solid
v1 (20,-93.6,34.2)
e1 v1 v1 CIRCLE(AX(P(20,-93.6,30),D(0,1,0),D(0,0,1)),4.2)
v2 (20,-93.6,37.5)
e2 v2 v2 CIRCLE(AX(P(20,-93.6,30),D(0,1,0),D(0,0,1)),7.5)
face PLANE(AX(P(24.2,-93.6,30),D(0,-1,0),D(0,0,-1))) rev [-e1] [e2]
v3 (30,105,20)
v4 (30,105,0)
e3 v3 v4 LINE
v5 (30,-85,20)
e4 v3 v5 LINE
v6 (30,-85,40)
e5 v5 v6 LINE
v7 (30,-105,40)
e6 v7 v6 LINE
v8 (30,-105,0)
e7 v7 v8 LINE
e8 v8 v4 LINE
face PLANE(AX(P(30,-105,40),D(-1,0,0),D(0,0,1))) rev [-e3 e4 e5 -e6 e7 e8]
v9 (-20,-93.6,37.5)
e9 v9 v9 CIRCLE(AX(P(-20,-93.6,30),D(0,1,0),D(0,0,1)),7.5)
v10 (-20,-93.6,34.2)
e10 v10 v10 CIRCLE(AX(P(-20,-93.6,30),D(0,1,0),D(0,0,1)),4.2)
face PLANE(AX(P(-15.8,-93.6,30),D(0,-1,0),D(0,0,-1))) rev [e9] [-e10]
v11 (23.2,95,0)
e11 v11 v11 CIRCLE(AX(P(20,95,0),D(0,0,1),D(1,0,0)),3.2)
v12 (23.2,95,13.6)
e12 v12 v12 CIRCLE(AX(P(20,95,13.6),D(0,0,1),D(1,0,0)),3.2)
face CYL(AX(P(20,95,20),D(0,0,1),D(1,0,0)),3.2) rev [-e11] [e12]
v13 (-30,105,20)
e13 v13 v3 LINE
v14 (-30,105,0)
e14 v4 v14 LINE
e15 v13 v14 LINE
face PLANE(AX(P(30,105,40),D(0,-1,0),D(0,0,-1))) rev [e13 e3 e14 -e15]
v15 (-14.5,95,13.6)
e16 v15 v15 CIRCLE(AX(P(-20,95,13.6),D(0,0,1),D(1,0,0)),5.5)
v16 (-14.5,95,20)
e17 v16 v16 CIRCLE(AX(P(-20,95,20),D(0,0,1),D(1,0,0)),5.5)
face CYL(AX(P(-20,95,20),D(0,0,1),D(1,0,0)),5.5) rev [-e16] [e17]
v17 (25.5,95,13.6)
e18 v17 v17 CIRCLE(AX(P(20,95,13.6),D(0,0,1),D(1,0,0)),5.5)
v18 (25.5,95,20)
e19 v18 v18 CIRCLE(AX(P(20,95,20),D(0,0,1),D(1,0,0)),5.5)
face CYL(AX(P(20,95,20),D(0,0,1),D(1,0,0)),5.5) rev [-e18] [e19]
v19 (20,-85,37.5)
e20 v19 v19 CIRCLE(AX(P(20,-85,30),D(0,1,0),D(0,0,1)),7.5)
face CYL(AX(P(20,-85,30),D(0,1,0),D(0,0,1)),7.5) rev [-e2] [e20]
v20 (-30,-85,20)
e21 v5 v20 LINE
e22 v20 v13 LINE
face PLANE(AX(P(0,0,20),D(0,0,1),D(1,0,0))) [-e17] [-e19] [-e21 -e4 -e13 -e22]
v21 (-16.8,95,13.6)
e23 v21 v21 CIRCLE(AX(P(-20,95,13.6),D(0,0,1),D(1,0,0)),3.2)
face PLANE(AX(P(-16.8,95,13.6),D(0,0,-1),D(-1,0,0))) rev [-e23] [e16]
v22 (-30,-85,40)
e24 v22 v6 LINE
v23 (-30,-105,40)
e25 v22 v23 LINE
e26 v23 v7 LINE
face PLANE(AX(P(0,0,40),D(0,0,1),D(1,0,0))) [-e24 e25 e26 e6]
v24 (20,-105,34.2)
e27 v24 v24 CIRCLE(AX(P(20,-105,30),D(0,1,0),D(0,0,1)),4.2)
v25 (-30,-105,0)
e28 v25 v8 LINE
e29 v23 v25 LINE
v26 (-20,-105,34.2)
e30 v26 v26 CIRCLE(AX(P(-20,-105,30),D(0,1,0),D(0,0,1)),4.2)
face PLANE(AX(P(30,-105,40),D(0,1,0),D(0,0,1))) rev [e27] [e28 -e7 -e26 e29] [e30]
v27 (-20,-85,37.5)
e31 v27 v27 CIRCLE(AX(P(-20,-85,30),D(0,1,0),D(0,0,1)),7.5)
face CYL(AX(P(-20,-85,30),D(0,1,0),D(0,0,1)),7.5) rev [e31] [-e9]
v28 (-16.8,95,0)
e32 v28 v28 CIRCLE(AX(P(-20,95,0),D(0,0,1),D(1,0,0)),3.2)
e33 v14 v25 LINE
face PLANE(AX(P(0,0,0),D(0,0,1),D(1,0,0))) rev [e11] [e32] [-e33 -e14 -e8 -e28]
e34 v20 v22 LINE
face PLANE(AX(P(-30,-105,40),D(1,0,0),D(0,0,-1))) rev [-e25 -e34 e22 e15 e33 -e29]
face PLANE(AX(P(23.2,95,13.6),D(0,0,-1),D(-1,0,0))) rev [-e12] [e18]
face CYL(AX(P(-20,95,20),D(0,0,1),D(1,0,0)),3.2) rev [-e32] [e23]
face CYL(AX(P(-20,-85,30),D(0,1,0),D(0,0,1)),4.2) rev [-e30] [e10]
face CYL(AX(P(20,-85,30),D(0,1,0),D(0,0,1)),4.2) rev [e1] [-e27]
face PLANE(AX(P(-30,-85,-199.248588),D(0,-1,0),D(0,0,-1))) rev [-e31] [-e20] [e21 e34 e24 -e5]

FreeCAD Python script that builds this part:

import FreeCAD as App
import Part
import Sketcher


def add_polygon(sketch, points):
    """Adds a closed chain of lines whose ends are joined by coincident constraints."""
    first, n = sketch.GeometryCount, len(points)
    for a, b in zip(points, points[1:] + points[:1]):
        sketch.addGeometry(Part.LineSegment(App.Vector(*a, 0), App.Vector(*b, 0)), False)
    for i in range(n):
        sketch.addConstraint(Sketcher.Constraint("Coincident", first + i, 2, first + (i + 1) % n, 1))

doc = App.newDocument("Part")
params = doc.addObject("Spreadsheet::Sheet", "Params")
for row, (alias, value) in enumerate([
    ("sketch1_width", "60 mm"),
    ("sketch1_height", "210 mm"),
    ("pad1_length", "40 mm"),
    ("sketch2_width", "60 mm"),
    ("sketch2_height", "190 mm"),
    ("pocket1_length", "20 mm"),
    ("sketch3_diameter", "6.4 mm"),
    ("hole_diameter", "6.4 mm"),
    ("hole_cbore_diameter", "11 mm"),
    ("hole_cbore_depth", "6.4 mm"),
    ("sketch4_diameter", "8.4 mm"),
    ("hole2_diameter", "8.4 mm"),
    ("hole2_cbore_diameter", "15 mm"),
    ("hole2_cbore_depth", "8.6 mm"),
], start=1):
    params.set(f"A{row}", alias)
    params.set(f"B{row}", "=" + value)
    params.setAlias(f"B{row}", alias)

body = doc.addObject("PartDesign::Body", "Body")

# Sketch on XY plane
sketch1 = body.newObject("Sketcher::SketchObject", "Sketch")
sketch1.AttachmentSupport = (doc.getObject("XY_Plane"), [""])
sketch1.MapMode = "FlatFace"
add_polygon(sketch1, [(-30, 105), (-30, -105), (30, -105), (30, 105)])  # lines 0-3
sketch1.addConstraint([
    Sketcher.Constraint("Vertical", 0),
    Sketcher.Constraint("Horizontal", 1),
    Sketcher.Constraint("Vertical", 2),
    Sketcher.Constraint("Horizontal", 3),
    Sketcher.Constraint("Symmetric", 0, 2, 2, 2, -1, 1),
    Sketcher.Constraint("DistanceX", 1, 1, 1, 2, 60.0),
    Sketcher.Constraint("DistanceY", 0, 2, 0, 1, 210.0),
])
sketch1.setExpression("Constraints[9]", "Params.sketch1_width")
sketch1.setExpression("Constraints[10]", "Params.sketch1_height")
pad1 = body.newObject("PartDesign::Pad", "Pad")
pad1.Profile = sketch1
pad1.setExpression("Length", "Params.pad1_length")

# Sketch on XY plane
sketch2 = body.newObject("Sketcher::SketchObject", "Sketch001")
sketch2.AttachmentSupport = (doc.getObject("XY_Plane"), [""])
sketch2.MapMode = "FlatFace"
sketch2.AttachmentOffset = App.Placement(App.Vector(0, 0, 40), App.Rotation())
add_polygon(sketch2, [(-30, 105), (-30, -85), (30, -85), (30, 105)])  # lines 0-3
sketch2.addConstraint([
    Sketcher.Constraint("Vertical", 0),
    Sketcher.Constraint("Horizontal", 1),
    Sketcher.Constraint("Vertical", 2),
    Sketcher.Constraint("Horizontal", 3),
    Sketcher.Constraint("DistanceX", 1, 1, 1, 2, 60.0),
    Sketcher.Constraint("DistanceY", 0, 2, 0, 1, 190.0),
    Sketcher.Constraint("DistanceX", 0, 2, -1, 1, 30.0),
    Sketcher.Constraint("DistanceY", 0, 2, -1, 1, 85.0),
])
sketch2.setExpression("Constraints[8]", "Params.sketch2_width")
sketch2.setExpression("Constraints[9]", "Params.sketch2_height")
pocket1 = body.newObject("PartDesign::Pocket", "Pocket")
pocket1.Profile = sketch2
pocket1.setExpression("Length", "Params.pocket1_length")

# Sketch on XY plane
sketch3 = body.newObject("Sketcher::SketchObject", "Sketch002")
sketch3.AttachmentSupport = (doc.getObject("XY_Plane"), [""])
sketch3.MapMode = "FlatFace"
sketch3.AttachmentOffset = App.Placement(App.Vector(0, 0, 20), App.Rotation())
sketch3.addGeometry([
    Part.Circle(App.Vector(-20, 95, 0), App.Vector(0, 0, 1), 3.2),
    Part.Circle(App.Vector(20, 95, 0), App.Vector(0, 0, 1), 3.2),
], False)
sketch3.addConstraint([
    Sketcher.Constraint("Equal", 0, 1),
    Sketcher.Constraint("Symmetric", 0, 3, 1, 3, -2),
    Sketcher.Constraint("Diameter", 0, 6.4),
    Sketcher.Constraint("DistanceX", 0, 3, -1, 1, 20.0),
    Sketcher.Constraint("DistanceY", -1, 1, 0, 3, 95.0),
])
sketch3.setExpression("Constraints[2]", "Params.sketch3_diameter")
doc.recompute()
hole = body.newObject("PartDesign::Hole", "Hole")
hole.Profile = sketch3
hole.ThreadType = "None"
hole.setExpression("Diameter", "Params.hole_diameter")
hole.DepthType = "ThroughAll"
hole.HoleCutType = "Counterbore"
hole.setExpression("HoleCutDiameter", "Params.hole_cbore_diameter")
hole.setExpression("HoleCutDepth", "Params.hole_cbore_depth")

# Sketch on XZ plane
sketch4 = body.newObject("Sketcher::SketchObject", "Sketch003")
sketch4.AttachmentSupport = (doc.getObject("XZ_Plane"), [""])
sketch4.MapMode = "FlatFace"
sketch4.AttachmentOffset = App.Placement(App.Vector(0, 0, 85), App.Rotation())
sketch4.addGeometry([
    Part.Circle(App.Vector(-20, 30, 0), App.Vector(0, 0, 1), 4.2),
    Part.Circle(App.Vector(20, 30, 0), App.Vector(0, 0, 1), 4.2),
], False)
sketch4.addConstraint([
    Sketcher.Constraint("Equal", 0, 1),
    Sketcher.Constraint("Symmetric", 0, 3, 1, 3, -2),
    Sketcher.Constraint("Diameter", 0, 8.4),
    Sketcher.Constraint("DistanceX", 0, 3, -1, 1, 20.0),
    Sketcher.Constraint("DistanceY", -1, 1, 0, 3, 30.0),
])
sketch4.setExpression("Constraints[2]", "Params.sketch4_diameter")
doc.recompute()
hole2 = body.newObject("PartDesign::Hole", "Hole001")
hole2.Profile = sketch4
hole2.ThreadType = "None"
hole2.setExpression("Diameter", "Params.hole2_diameter")
hole2.DepthType = "ThroughAll"
hole2.HoleCutType = "Counterbore"
hole2.setExpression("HoleCutDiameter", "Params.hole2_cbore_diameter")
hole2.setExpression("HoleCutDepth", "Params.hole2_cbore_depth")
hole2.Reversed = True

doc.recompute()
